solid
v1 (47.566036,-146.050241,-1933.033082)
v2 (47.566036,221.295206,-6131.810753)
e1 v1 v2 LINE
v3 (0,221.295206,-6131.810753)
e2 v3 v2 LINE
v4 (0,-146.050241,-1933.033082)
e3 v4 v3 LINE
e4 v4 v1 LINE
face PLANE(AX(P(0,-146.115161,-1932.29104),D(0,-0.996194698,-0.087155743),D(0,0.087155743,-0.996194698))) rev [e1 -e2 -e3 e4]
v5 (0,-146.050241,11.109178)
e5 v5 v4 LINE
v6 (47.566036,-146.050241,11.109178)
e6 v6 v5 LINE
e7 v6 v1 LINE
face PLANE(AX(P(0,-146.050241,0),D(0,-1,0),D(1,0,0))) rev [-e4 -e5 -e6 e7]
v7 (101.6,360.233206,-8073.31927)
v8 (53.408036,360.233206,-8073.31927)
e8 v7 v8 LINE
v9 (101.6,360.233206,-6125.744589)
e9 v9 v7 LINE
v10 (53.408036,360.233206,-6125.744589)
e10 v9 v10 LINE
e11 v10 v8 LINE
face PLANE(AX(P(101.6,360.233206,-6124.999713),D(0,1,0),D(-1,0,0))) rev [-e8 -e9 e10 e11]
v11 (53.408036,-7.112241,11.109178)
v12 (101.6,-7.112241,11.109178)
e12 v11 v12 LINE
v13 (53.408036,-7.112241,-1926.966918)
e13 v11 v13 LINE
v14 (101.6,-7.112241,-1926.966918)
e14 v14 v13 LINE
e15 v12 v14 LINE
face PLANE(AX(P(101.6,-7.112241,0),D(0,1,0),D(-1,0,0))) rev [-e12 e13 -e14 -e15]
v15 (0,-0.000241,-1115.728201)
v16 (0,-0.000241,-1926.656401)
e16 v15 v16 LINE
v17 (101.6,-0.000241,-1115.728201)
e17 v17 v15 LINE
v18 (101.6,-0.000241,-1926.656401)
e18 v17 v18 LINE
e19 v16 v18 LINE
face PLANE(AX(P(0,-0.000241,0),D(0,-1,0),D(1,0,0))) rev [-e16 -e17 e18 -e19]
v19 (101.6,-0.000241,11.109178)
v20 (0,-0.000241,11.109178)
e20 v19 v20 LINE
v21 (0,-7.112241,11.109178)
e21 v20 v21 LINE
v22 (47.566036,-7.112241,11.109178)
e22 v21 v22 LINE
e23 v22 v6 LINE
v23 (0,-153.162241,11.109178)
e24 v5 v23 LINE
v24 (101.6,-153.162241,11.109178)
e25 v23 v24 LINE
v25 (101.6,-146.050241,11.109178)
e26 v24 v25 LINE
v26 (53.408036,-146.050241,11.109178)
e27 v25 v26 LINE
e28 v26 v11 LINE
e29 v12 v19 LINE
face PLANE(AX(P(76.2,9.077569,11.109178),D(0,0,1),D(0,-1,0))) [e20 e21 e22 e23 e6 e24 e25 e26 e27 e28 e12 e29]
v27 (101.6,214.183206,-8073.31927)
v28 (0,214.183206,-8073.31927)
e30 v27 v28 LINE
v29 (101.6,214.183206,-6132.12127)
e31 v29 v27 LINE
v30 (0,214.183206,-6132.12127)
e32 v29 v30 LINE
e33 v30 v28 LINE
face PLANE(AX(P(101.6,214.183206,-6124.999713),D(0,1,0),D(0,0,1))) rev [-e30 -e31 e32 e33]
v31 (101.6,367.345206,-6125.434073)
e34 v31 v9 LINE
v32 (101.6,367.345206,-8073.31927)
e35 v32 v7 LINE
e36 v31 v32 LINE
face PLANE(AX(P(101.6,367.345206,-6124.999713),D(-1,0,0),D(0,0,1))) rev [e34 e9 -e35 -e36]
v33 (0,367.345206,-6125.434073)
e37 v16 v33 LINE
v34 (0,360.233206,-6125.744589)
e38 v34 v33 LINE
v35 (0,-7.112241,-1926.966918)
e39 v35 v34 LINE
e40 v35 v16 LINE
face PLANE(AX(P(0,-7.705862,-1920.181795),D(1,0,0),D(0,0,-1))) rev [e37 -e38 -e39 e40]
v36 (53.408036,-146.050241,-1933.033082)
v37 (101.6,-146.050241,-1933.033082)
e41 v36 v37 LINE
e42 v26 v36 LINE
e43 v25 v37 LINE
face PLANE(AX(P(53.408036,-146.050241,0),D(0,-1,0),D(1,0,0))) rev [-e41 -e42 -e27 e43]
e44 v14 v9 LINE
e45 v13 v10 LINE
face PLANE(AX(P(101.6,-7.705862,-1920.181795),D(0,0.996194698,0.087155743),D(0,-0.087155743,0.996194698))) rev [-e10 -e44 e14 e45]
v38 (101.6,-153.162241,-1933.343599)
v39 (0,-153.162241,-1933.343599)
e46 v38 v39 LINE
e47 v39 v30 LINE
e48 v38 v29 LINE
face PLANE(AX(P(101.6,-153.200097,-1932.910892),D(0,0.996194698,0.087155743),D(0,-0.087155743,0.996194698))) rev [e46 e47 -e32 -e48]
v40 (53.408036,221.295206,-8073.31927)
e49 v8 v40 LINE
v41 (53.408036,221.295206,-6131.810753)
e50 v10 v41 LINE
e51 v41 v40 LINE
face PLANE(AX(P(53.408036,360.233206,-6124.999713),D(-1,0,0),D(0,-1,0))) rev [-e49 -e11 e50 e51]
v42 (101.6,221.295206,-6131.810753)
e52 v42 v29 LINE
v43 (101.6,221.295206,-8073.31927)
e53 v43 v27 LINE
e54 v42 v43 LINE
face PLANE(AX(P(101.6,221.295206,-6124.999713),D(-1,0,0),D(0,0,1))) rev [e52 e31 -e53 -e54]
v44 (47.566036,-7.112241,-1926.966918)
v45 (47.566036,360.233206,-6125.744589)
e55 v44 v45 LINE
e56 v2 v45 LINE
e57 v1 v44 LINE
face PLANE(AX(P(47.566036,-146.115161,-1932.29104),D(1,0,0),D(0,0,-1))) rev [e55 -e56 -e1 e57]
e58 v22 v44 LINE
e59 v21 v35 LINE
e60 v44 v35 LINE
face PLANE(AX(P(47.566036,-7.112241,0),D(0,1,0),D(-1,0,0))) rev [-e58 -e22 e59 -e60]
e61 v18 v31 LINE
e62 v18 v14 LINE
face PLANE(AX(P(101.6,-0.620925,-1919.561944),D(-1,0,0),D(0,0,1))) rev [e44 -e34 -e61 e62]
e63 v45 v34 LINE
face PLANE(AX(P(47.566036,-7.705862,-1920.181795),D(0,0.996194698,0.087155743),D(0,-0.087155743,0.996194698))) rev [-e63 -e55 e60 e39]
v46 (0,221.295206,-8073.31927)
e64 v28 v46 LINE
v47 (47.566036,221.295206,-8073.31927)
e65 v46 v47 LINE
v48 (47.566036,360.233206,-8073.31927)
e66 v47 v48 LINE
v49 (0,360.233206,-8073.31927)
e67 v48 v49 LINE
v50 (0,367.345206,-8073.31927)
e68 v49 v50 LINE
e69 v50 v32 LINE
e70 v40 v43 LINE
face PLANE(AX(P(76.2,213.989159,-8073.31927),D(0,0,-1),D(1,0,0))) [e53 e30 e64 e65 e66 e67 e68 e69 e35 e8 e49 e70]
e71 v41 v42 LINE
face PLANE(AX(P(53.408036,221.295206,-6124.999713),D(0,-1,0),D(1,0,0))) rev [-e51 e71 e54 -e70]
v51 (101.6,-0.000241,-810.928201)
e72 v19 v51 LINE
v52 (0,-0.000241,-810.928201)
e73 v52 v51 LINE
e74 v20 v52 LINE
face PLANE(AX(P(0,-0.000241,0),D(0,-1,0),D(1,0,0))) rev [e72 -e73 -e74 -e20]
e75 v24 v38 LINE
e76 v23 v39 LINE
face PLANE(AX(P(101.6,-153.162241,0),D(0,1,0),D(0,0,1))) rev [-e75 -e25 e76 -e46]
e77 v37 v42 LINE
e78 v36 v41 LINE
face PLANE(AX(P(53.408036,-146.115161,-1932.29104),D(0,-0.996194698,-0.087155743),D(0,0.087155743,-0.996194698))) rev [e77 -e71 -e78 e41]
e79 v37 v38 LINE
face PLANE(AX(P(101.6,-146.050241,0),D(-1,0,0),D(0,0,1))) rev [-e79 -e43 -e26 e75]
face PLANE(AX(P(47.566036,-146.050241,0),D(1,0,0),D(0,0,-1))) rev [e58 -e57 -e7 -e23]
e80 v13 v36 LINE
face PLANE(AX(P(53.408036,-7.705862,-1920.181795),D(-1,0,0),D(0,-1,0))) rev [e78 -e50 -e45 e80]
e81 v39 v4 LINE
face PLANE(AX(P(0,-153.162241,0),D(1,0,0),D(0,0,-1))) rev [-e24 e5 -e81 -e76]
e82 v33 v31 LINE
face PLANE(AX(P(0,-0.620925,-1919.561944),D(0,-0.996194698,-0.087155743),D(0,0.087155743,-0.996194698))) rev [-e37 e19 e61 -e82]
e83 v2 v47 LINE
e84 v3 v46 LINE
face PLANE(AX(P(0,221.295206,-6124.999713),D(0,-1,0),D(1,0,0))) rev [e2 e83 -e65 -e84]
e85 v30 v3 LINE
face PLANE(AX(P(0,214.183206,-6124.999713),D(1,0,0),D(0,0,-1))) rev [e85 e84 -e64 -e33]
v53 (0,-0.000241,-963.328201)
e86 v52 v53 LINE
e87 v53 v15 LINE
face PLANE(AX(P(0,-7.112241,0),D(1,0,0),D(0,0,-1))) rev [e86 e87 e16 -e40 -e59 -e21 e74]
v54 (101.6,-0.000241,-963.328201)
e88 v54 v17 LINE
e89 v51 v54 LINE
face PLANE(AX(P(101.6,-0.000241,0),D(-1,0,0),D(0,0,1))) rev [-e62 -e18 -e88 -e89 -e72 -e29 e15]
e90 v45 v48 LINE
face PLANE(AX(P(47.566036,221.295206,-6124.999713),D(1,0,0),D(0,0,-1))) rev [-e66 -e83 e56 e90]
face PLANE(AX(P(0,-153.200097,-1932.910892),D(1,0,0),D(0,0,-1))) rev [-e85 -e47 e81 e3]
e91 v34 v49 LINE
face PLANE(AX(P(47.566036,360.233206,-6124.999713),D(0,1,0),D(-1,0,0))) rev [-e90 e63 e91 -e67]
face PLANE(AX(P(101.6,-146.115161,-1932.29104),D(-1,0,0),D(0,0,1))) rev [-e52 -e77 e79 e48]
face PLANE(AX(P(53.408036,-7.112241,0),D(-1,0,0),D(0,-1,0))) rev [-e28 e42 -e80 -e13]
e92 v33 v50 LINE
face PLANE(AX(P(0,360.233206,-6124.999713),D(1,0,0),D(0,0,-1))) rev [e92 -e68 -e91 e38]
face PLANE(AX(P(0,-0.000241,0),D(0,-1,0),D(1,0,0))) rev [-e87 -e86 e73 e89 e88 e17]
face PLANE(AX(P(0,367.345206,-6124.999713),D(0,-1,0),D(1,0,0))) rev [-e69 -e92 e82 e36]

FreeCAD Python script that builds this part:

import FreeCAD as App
import Part
import Sketcher

V = App.Vector
Q = App.Units.Quantity


def add_polygon(sketch, points):
    """Adds a closed chain of lines whose ends are joined by coincident constraints."""
    first, n = sketch.GeometryCount, len(points)
    for a, b in zip(points, points[1:] + points[:1]):
        sketch.addGeometry(Part.LineSegment(App.Vector(*a, 0), App.Vector(*b, 0)), False)
    for i in range(n):
        sketch.addConstraint(Sketcher.Constraint("Coincident", first + i, 2, first + (i + 1) % n, 1))

doc = App.newDocument("Part")
body = doc.addObject("PartDesign::Body", "Body")

# Sketch on XY plane
sketch1 = doc.addObject("Sketcher::SketchObject", "Sketch")
body.addObject(sketch1)
sketch1.AttachmentSupport = (doc.XY_Plane, [""])
sketch1.MapMode = "FlatFace"
add_polygon(sketch1, [(102, 0), (0, 0), (0, -7), (48, -7), (48, -146), (0, -146), (0, -153), (102, -153), (102, -146), (53, -146), (53, -7), (102, -7)])  # lines 0-11
sketch1.addConstraint([
    Sketcher.Constraint("Horizontal", 0),
    Sketcher.Constraint("Vertical", 1),
    Sketcher.Constraint("Horizontal", 2),
    Sketcher.Constraint("Vertical", 3),
    Sketcher.Constraint("Horizontal", 4),
    Sketcher.Constraint("Vertical", 5),
    Sketcher.Constraint("Horizontal", 6),
    Sketcher.Constraint("Vertical", 7),
    Sketcher.Constraint("Horizontal", 8),
    Sketcher.Constraint("Vertical", 9),
    Sketcher.Constraint("Horizontal", 10),
    Sketcher.Constraint("Vertical", 11),
    Sketcher.Constraint("PointOnObject", 0, 2, -2),
    Sketcher.Constraint("PointOnObject", 4, 2, -2),
    Sketcher.Constraint("Horizontal", 4, 2, 7, 2),
    Sketcher.Constraint("Horizontal", 2, 2, 9, 2),
    Sketcher.Constraint("Vertical", 7, 2, 10, 2),
    Sketcher.Constraint("Equal", 1, 5),
    Sketcher.Constraint("DistanceX", 0, 2, 0, 1, Q("4 in")),
    Sketcher.Constraint("DistanceY", 1, 2, 1, 1, Q("0.28 in")),
    Sketcher.Constraint("DistanceY", 3, 2, 3, 1, Q("5.47 in")),
    Sketcher.Constraint("DistanceX", 3, 2, 8, 2, Q("0.23 in")),
    Sketcher.Constraint("DistanceX", 2, 1, 2, 2, 47.566036),
    Sketcher.Constraint("DistanceY", 0, 2, -1, 1, 0.000241),
])

# Sketch on YZ plane
sketch2 = doc.addObject("Sketcher::SketchObject", "Sketch001")
body.addObject(sketch2)
sketch2.AttachmentSupport = (doc.YZ_Plane, [""])
sketch2.MapMode = "FlatFace"
sketch2.addGeometry([
    Part.LineSegment(V(-77, 0, 0), V(-77, -1930, 0)),
    Part.LineSegment(V(-77, -1930, 0), V(291, -6129, 0)),
    Part.LineSegment(V(291, -6129, 0), V(291, -8059, 0)),
], False)
sketch2.addConstraint([
    Sketcher.Constraint("Coincident", 0, 2, 1, 1),
    Sketcher.Constraint("Coincident", 1, 2, 2, 1),
    Sketcher.Constraint("Vertical", 0),
    Sketcher.Constraint("Vertical", 2),
    Sketcher.Constraint("PointOnObject", 0, 1, -1),
    Sketcher.Constraint("Equal", 0, 2),
    Sketcher.Constraint("Angle", 1, Q("-85 deg")),
    Sketcher.Constraint("DistanceY", 0, 2, 0, 1, 1930.0),
    Sketcher.Constraint("Distance", 1, 4214.81632),
    Sketcher.Constraint("DistanceX", 0, 1, -1, 1, 76.581241),
])
doc.recompute()

additivepipe = doc.addObject("PartDesign::AdditivePipe", "AdditivePipe")
body.addObject(additivepipe)
additivepipe.Profile = sketch1
additivepipe.Spine = (sketch2, ["Edge1", "Edge2", "Edge3"])
additivepipe.Transition = "Right corner"

# Sketch on XY plane
sketch3 = doc.addObject("Sketcher::SketchObject", "Sketch002")
body.addObject(sketch3)
sketch3.AttachmentSupport = (doc.XY_Plane, [""])
sketch3.MapMode = "FlatFace"
sketch3.AttachmentOffset = App.Placement(V(0, 0, -8058.777671), App.Rotation())
add_polygon(sketch3, [(0, 360), (0, 367), (102, 367), (102, 360), (53, 360), (53, 221), (102, 221), (102, 214), (0, 214), (0, 221), (48, 221), (48, 360)])  # lines 0-11
sketch3.addConstraint([
    Sketcher.Constraint("Vertical", 0),
    Sketcher.Constraint("Horizontal", 1),
    Sketcher.Constraint("Vertical", 2),
    Sketcher.Constraint("Horizontal", 3),
    Sketcher.Constraint("Vertical", 4),
    Sketcher.Constraint("Horizontal", 5),
    Sketcher.Constraint("Vertical", 6),
    Sketcher.Constraint("Horizontal", 7),
    Sketcher.Constraint("Vertical", 8),
    Sketcher.Constraint("Horizontal", 9),
    Sketcher.Constraint("Vertical", 10),
    Sketcher.Constraint("Horizontal", 11),
    Sketcher.Constraint("PointOnObject", 0, 2, -2),
    Sketcher.Constraint("PointOnObject", 7, 2, -2),
    Sketcher.Constraint("Horizontal", 5, 2, 8, 2),
    Sketcher.Constraint("Horizontal", 3, 2, 10, 2),
    Sketcher.Constraint("Vertical", 2, 2, 5, 2),
    Sketcher.Constraint("Equal", 2, 6),
    Sketcher.Constraint("DistanceX", 1, 1, 1, 2, Q("4 in")),
    Sketcher.Constraint("DistanceY", 0, 1, 0, 2, Q("0.28 in")),
    Sketcher.Constraint("DistanceY", 4, 2, 4, 1, Q("5.47 in")),
    Sketcher.Constraint("DistanceX", 9, 2, 4, 2, Q("0.23 in")),
    Sketcher.Constraint("DistanceX", 3, 2, 3, 1, 48.191964),
    Sketcher.Constraint("DistanceY", -1, 1, 0, 2, 367.345206),
])
pad1 = doc.addObject("PartDesign::Pad", "Pad")
body.addObject(pad1)
pad1.Profile = sketch3
pad1.Length = 14.541599
pad1.Reversed = True

# Sketch on XY plane
sketch4 = doc.addObject("Sketcher::SketchObject", "Sketch003")
body.addObject(sketch4)
sketch4.AttachmentSupport = (doc.XY_Plane, [""])
sketch4.MapMode = "FlatFace"
add_polygon(sketch4, [(0, 0), (0, -7), (48, -7), (48, -146), (0, -146), (0, -153), (102, -153), (102, -146), (53, -146), (53, -7), (102, -7), (102, 0)])  # lines 0-11
sketch4.addConstraint([
    Sketcher.Constraint("Vertical", 0),
    Sketcher.Constraint("Horizontal", 1),
    Sketcher.Constraint("Vertical", 2),
    Sketcher.Constraint("Horizontal", 3),
    Sketcher.Constraint("Vertical", 4),
    Sketcher.Constraint("Horizontal", 5),
    Sketcher.Constraint("Vertical", 6),
    Sketcher.Constraint("Horizontal", 7),
    Sketcher.Constraint("Vertical", 8),
    Sketcher.Constraint("Horizontal", 9),
    Sketcher.Constraint("Vertical", 10),
    Sketcher.Constraint("Horizontal", 11),
    Sketcher.Constraint("PointOnObject", 0, 2, -2),
    Sketcher.Constraint("PointOnObject", 3, 2, -2),
    Sketcher.Constraint("Horizontal", 3, 2, 6, 2),
    Sketcher.Constraint("Horizontal", 1, 2, 8, 2),
    Sketcher.Constraint("Vertical", 6, 2, 9, 2),
    Sketcher.Constraint("Equal", 0, 4),
    Sketcher.Constraint("DistanceX", 5, 1, 5, 2, Q("4 in")),
    Sketcher.Constraint("DistanceY", 0, 2, 0, 1, Q("0.28 in")),
    Sketcher.Constraint("DistanceY", 2, 2, 2, 1, Q("5.47 in")),
    Sketcher.Constraint("DistanceX", 2, 2, 7, 2, Q("0.23 in")),
    Sketcher.Constraint("DistanceX", 1, 1, 1, 2, 47.566036),
    Sketcher.Constraint("DistanceY", 0, 2, -1, 1, 7.112241),
])
pad2 = doc.addObject("PartDesign::Pad", "Pad001")
body.addObject(pad2)
pad2.Profile = sketch4
pad2.Length = 11.109178

doc.recompute()
